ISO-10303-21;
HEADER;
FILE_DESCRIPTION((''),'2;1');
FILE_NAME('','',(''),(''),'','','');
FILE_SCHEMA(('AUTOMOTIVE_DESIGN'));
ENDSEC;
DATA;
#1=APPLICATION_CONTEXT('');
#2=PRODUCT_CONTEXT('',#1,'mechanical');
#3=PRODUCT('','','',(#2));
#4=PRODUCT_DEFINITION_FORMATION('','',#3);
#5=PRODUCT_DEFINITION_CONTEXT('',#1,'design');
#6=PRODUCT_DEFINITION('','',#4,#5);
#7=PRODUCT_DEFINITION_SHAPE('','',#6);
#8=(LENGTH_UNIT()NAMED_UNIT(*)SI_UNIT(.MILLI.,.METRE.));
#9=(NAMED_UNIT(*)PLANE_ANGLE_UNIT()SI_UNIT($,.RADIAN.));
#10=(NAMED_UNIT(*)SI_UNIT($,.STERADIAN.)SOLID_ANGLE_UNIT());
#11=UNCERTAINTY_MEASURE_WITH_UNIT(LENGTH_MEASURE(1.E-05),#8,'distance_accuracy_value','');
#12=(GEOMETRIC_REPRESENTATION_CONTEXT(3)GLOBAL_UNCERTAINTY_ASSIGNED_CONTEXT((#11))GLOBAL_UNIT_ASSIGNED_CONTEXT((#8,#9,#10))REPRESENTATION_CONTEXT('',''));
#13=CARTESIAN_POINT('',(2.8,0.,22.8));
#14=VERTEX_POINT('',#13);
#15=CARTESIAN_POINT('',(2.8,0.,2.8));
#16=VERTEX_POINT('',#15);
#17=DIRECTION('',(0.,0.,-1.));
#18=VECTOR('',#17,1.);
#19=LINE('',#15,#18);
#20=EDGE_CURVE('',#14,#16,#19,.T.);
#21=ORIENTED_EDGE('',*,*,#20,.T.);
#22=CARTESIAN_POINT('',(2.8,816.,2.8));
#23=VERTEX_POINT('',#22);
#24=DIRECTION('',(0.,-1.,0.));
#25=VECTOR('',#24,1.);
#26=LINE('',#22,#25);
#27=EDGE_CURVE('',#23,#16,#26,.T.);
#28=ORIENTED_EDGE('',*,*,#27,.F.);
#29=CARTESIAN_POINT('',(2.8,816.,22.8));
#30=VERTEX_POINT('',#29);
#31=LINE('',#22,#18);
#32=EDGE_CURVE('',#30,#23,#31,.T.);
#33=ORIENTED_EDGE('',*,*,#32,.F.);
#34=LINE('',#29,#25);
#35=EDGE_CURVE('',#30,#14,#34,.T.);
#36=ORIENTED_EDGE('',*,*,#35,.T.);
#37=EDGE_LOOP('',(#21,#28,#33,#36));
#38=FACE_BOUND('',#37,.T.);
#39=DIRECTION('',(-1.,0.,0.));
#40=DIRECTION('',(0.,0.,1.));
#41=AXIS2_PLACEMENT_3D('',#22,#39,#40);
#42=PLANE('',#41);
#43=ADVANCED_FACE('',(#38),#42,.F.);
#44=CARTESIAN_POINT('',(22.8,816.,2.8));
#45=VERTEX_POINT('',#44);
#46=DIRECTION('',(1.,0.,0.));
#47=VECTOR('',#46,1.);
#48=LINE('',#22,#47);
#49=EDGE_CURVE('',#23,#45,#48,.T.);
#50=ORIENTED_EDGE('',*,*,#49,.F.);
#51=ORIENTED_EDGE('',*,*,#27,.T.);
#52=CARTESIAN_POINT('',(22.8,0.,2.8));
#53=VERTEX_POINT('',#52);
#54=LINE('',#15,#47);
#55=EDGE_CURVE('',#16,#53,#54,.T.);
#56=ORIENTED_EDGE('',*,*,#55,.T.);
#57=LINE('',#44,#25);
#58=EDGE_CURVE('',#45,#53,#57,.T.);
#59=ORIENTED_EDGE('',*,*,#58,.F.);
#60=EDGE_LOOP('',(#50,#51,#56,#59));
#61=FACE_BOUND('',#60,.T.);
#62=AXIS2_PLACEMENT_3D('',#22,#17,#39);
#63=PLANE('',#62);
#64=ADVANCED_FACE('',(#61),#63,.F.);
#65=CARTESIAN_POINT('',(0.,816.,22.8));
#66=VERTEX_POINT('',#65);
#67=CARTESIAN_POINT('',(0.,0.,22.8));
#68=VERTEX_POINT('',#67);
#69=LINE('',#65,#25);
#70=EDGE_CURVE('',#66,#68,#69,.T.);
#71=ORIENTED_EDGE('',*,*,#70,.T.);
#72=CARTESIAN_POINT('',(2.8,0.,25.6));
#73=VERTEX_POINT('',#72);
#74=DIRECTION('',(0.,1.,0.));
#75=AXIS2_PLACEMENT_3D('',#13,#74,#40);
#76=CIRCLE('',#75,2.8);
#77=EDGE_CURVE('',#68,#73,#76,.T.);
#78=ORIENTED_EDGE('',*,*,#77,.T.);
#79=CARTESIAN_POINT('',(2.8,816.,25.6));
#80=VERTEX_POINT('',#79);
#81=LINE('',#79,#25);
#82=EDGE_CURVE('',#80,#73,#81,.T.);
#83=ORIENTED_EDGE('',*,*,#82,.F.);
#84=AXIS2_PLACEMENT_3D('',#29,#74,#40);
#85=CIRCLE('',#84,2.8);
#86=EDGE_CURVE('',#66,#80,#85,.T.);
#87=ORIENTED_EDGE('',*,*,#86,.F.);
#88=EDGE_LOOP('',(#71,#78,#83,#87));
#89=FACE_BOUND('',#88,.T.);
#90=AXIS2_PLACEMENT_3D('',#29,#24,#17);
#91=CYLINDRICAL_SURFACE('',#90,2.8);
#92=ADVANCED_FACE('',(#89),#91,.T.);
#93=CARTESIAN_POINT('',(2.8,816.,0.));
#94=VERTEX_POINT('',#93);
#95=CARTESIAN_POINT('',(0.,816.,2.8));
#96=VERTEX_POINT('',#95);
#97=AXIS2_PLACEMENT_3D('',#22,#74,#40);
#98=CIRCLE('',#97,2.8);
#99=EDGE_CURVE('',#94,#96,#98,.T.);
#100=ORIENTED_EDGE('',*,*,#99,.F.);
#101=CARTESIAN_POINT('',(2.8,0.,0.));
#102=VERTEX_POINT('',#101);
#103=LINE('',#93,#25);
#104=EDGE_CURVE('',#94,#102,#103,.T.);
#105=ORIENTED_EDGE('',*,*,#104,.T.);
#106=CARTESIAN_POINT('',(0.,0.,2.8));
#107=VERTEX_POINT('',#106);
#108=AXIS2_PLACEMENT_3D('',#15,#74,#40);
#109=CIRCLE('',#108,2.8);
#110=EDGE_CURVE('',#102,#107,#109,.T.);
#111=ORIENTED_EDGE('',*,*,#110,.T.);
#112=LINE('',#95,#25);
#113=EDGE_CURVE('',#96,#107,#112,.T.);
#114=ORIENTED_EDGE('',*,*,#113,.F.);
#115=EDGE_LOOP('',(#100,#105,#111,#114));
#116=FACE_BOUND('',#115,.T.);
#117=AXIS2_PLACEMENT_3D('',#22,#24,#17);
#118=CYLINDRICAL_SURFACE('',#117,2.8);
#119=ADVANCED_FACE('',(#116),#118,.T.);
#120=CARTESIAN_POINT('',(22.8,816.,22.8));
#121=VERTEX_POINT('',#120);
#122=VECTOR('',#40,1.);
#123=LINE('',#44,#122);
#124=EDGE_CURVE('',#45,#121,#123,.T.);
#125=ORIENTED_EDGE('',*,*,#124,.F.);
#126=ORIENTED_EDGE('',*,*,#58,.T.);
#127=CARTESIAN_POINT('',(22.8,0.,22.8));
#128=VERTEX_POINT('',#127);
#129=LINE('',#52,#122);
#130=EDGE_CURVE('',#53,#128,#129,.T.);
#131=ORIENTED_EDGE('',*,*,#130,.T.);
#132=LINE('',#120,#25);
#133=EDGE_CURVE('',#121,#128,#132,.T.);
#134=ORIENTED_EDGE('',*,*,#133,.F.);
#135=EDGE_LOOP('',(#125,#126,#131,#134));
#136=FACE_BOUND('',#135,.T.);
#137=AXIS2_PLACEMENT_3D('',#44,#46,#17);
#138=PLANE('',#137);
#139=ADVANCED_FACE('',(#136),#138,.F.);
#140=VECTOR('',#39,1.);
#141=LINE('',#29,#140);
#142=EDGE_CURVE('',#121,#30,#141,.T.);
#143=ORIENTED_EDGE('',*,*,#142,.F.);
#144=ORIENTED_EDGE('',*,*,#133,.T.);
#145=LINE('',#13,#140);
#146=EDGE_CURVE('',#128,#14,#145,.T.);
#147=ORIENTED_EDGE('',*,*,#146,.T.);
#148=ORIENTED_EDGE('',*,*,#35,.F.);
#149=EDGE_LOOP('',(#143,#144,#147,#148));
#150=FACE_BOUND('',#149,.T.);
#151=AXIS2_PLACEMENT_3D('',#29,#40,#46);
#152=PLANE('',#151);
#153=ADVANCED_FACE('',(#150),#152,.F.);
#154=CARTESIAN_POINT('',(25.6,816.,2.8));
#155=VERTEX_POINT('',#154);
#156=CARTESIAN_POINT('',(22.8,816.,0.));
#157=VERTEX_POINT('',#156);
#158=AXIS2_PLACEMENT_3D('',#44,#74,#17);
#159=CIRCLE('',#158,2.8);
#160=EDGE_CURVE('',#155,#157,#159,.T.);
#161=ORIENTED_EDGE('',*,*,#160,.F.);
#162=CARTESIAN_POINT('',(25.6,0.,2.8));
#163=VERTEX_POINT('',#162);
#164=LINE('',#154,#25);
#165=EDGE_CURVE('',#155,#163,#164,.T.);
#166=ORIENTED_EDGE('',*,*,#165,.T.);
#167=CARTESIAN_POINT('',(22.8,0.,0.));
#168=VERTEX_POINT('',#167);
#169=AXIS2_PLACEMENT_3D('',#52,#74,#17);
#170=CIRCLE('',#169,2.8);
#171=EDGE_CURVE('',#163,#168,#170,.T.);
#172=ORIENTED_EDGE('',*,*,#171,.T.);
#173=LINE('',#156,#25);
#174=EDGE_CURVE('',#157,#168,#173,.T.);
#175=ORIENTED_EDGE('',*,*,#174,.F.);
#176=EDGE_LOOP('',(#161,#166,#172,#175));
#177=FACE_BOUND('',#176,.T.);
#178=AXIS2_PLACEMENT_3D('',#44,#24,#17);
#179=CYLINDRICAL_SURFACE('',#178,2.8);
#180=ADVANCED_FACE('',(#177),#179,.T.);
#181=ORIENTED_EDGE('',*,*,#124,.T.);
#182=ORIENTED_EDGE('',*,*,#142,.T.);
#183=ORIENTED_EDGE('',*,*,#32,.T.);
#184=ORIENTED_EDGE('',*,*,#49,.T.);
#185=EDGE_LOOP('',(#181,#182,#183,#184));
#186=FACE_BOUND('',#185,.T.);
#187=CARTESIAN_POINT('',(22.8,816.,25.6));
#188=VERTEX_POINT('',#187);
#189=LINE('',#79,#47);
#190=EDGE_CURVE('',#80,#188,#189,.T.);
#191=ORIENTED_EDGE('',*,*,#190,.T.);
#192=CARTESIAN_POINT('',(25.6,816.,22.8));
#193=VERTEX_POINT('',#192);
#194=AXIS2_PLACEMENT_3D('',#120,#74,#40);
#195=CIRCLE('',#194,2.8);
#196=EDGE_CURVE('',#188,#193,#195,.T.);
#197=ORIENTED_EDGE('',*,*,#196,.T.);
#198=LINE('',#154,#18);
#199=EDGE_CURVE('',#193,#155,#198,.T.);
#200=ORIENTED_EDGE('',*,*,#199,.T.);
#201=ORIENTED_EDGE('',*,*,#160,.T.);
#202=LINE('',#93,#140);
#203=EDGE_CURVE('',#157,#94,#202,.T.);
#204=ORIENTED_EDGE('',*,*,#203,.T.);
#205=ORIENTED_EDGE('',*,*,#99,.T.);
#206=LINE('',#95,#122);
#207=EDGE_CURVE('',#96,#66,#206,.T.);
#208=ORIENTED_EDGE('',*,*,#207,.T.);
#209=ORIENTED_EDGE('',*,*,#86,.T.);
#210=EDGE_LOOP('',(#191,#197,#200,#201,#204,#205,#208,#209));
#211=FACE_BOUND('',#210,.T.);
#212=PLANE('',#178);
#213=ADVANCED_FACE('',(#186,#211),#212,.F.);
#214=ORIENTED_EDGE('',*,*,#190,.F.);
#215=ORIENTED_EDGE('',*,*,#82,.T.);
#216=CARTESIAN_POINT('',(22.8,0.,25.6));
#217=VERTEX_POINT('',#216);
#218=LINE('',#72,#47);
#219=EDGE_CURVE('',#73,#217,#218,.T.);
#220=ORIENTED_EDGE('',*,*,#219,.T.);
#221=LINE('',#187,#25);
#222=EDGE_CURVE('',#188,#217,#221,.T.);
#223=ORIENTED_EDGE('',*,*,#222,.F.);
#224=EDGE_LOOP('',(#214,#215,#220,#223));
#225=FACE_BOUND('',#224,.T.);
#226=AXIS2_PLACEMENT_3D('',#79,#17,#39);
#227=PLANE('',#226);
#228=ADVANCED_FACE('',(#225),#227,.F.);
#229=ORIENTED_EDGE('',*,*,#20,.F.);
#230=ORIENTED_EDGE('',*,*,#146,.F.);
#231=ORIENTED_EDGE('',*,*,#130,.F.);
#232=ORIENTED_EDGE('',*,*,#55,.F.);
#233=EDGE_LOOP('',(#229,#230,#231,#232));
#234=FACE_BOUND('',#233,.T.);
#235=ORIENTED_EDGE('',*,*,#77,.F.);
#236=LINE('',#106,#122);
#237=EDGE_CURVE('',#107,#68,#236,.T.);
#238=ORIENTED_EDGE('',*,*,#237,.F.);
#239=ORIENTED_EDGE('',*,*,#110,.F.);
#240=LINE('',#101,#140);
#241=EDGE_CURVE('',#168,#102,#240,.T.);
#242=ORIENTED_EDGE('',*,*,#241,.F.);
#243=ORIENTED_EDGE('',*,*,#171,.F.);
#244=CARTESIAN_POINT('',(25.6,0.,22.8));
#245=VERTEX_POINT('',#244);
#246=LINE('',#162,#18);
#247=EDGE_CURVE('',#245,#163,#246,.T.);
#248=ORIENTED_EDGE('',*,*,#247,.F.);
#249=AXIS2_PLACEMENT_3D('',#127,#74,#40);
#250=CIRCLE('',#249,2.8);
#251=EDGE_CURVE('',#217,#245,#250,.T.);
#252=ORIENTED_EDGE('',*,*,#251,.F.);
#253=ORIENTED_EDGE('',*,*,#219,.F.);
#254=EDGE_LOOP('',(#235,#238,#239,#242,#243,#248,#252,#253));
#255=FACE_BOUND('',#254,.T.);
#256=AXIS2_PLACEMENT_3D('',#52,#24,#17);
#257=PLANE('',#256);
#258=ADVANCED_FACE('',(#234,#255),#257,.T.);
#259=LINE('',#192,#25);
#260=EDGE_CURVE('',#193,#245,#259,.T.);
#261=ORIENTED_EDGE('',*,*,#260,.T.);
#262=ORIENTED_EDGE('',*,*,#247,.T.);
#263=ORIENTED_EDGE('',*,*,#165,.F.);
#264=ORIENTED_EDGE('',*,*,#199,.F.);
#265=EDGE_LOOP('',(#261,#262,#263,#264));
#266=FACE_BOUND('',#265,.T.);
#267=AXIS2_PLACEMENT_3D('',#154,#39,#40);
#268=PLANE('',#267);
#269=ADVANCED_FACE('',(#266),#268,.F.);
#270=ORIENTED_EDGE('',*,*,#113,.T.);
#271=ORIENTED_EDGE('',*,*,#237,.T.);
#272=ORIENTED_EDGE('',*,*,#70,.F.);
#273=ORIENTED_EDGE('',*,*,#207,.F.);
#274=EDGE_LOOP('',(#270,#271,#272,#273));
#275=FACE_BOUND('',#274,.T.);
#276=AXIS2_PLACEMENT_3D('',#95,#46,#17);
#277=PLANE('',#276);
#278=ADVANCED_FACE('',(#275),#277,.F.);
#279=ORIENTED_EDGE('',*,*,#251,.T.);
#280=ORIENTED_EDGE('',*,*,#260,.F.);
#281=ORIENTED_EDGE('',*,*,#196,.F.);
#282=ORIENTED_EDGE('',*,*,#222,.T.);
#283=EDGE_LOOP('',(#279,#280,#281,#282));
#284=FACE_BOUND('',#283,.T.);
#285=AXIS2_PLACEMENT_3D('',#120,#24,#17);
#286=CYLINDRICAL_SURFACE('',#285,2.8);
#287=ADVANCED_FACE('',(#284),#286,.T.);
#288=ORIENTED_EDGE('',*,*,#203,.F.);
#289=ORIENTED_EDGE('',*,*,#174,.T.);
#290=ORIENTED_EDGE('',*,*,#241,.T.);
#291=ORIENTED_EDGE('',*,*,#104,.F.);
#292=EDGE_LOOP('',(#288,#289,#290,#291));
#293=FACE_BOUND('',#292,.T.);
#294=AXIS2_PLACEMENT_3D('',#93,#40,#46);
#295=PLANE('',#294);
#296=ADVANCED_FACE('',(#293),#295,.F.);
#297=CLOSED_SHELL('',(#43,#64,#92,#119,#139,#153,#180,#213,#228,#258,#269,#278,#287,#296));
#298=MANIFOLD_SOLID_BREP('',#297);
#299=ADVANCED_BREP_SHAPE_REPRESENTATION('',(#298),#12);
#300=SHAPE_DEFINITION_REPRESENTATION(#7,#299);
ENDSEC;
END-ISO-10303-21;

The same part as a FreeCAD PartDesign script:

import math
import FreeCAD as App
import Part
import Sketcher
from FreeCAD import Vector
Q = App.Units.Quantity

doc = App.newDocument("Part")
body = doc.addObject("PartDesign::Body", "Body")

# Sketch on XZ plane
sketch1 = doc.addObject("Sketcher::SketchObject", "Sketch")
body.addObject(sketch1)
sketch1.AttachmentSupport = (doc.XZ_Plane, [""])
sketch1.MapMode = "FlatFace"
sketch1.addGeometry([
    Part.LineSegment(Vector(22.8, 0, 0), Vector(2.8, 0, 0)),  # 0
    Part.ArcOfCircle(Part.Circle(Vector(2.8, 2.8, 0), Vector(0, 0, 1), 2.8), math.radians(-180), math.radians(-90)),  # 1
    Part.LineSegment(Vector(0, 2.8, 0), Vector(0, 22.8, 0)),  # 2
    Part.ArcOfCircle(Part.Circle(Vector(2.8, 22.8, 0), Vector(0, 0, 1), 2.8), math.radians(90), math.radians(180)),  # 3
    Part.LineSegment(Vector(2.8, 25.6, 0), Vector(22.8, 25.6, 0)),  # 4
    Part.ArcOfCircle(Part.Circle(Vector(22.8, 22.8, 0), Vector(0, 0, 1), 2.8), math.radians(0), math.radians(90)),  # 5
    Part.LineSegment(Vector(25.6, 22.8, 0), Vector(25.6, 2.8, 0)),  # 6
    Part.ArcOfCircle(Part.Circle(Vector(22.8, 2.8, 0), Vector(0, 0, 1), 2.8), math.radians(-90), math.radians(0)),  # 7
], False)
sketch1.addConstraint([
    Sketcher.Constraint("Tangent", 0, 2, 1, 2),
    Sketcher.Constraint("Tangent", 1, 1, 2, 1),
    Sketcher.Constraint("Tangent", 2, 2, 3, 2),
    Sketcher.Constraint("Tangent", 3, 1, 4, 1),
    Sketcher.Constraint("Tangent", 4, 2, 5, 2),
    Sketcher.Constraint("Tangent", 5, 1, 6, 1),
    Sketcher.Constraint("Tangent", 6, 2, 7, 2),
    Sketcher.Constraint("Tangent", 7, 1, 0, 1),
    Sketcher.Constraint("Horizontal", 0),
    Sketcher.Constraint("Vertical", 2),
    Sketcher.Constraint("Horizontal", 4),
    Sketcher.Constraint("Vertical", 6),
    Sketcher.Constraint("Equal", 1, 3),
    Sketcher.Constraint("Equal", 3, 5),
    Sketcher.Constraint("Equal", 5, 7),
    Sketcher.Constraint("PointOnObject", 0, 2, -1),
    Sketcher.Constraint("PointOnObject", 1, 1, -2),
    Sketcher.Constraint("Equal", 4, 2),
    Sketcher.Constraint("Radius", 1, Q("2.8 mm")),
    Sketcher.Constraint("DistanceX", 0, 2, 0, 1, Q("20 mm")),
])
pad1 = doc.addObject("PartDesign::Pad", "Pad")
body.addObject(pad1)
pad1.Profile = sketch1
pad1.Length = 816
pad1.Reversed = True

# Sketch on XZ plane
sketch2 = doc.addObject("Sketcher::SketchObject", "Sketch001")
body.addObject(sketch2)
sketch2.AttachmentSupport = (doc.XZ_Plane, [""])
sketch2.MapMode = "FlatFace"
sketch2.addGeometry([
    Part.LineSegment(Vector(22.8, 2.8, 0), Vector(22.8, 22.8, 0)),
    Part.LineSegment(Vector(22.8, 22.8, 0), Vector(2.8, 22.8, 0)),
    Part.LineSegment(Vector(2.8, 22.8, 0), Vector(2.8, 2.8, 0)),
    Part.LineSegment(Vector(2.8, 2.8, 0), Vector(22.8, 2.8, 0)),
], False)
sketch2.addConstraint([
    Sketcher.Constraint("Coincident", 0, 2, 1, 1),
    Sketcher.Constraint("Coincident", 1, 2, 2, 1),
    Sketcher.Constraint("Coincident", 2, 2, 3, 1),
    Sketcher.Constraint("Coincident", 3, 2, 0, 1),
    Sketcher.Constraint("Vertical", 0),
    Sketcher.Constraint("Horizontal", 1),
    Sketcher.Constraint("Vertical", 2),
    Sketcher.Constraint("Horizontal", 3),
    Sketcher.Constraint("Equal", 3, 0),
    Sketcher.Constraint("DistanceX", 1, 2, 1, 1, Q("20 mm")),
    Sketcher.Constraint("DistanceX", -1, 1, 0, 2, Q("22.8 mm")),
    Sketcher.Constraint("DistanceY", -1, 1, 0, 2, Q("22.8 mm")),
])
pocket1 = doc.addObject("PartDesign::Pocket", "Pocket")
body.addObject(pocket1)
pocket1.Profile = sketch2
pocket1.Length = 816

doc.recompute()
